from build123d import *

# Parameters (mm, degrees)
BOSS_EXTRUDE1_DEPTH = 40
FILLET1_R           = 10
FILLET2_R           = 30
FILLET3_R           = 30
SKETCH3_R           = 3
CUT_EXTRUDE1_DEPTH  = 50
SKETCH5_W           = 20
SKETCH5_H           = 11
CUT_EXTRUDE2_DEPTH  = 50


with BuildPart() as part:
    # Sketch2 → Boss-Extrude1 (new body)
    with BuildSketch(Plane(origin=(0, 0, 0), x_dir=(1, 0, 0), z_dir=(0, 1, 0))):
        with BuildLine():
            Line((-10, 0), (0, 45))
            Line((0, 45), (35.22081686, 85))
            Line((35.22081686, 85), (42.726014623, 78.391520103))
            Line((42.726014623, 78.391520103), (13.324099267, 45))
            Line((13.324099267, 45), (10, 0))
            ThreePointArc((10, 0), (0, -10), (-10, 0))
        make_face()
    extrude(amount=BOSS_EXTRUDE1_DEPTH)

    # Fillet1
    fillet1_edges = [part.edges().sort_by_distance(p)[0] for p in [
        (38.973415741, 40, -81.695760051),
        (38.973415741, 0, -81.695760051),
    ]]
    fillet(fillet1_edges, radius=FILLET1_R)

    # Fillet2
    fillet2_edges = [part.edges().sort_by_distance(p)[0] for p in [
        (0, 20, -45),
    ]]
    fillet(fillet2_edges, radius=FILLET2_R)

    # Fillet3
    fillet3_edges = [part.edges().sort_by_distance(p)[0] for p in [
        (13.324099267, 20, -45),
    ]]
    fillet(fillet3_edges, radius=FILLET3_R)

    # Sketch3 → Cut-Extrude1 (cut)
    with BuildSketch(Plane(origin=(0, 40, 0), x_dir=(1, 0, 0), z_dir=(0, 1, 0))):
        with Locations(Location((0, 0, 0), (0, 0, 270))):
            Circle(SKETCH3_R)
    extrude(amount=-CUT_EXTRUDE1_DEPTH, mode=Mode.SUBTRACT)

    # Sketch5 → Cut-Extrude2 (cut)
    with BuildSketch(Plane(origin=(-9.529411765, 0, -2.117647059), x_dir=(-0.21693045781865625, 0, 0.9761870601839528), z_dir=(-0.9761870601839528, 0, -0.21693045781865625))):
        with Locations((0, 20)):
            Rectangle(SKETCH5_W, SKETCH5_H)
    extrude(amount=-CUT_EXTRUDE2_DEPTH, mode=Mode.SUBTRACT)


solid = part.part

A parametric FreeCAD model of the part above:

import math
import FreeCAD as App
import Part
import Sketcher

V = App.Vector


def edges_at(feature, points):
    """Names of the edges that pass closest to the given points."""
    edges = feature.Shape.Edges
    near = lambda p: min(range(len(edges)), key=lambda i: edges[i].distToShape(Part.Vertex(*p))[0])
    return sorted({f"Edge{near(p) + 1}" for p in points})


def add_polygon(sketch, points):
    """Adds a closed chain of lines whose ends are joined by coincident constraints."""
    first, n = sketch.GeometryCount, len(points)
    for a, b in zip(points, points[1:] + points[:1]):
        sketch.addGeometry(Part.LineSegment(App.Vector(*a, 0), App.Vector(*b, 0)), False)
    for i in range(n):
        sketch.addConstraint(Sketcher.Constraint("Coincident", first + i, 2, first + (i + 1) % n, 1))

doc = App.newDocument("Part")
body = doc.addObject("PartDesign::Body", "Body")

# Sketch on XZ plane
sketch1 = doc.addObject("Sketcher::SketchObject", "Sketch")
body.addObject(sketch1)
sketch1.AttachmentSupport = (doc.XZ_Plane, [""])
sketch1.MapMode = "FlatFace"
sketch1.addGeometry(Part.LineSegment(V(0, -45, 0), V(-10, 0, 0)), False)
sketch1.addGeometry(Part.ArcOfCircle(Part.Circle(V(0, 0, 0), V(0, 0, 1), 10), math.radians(0), math.radians(180)), False)
sketch1.addGeometry(Part.LineSegment(V(10, 0, 0), V(13, -45, 0)), False)
sketch1.addGeometry(Part.LineSegment(V(13, -45, 0), V(43, -78, 0)), False)
sketch1.addGeometry(Part.LineSegment(V(43, -78, 0), V(35, -85, 0)), False)
sketch1.addGeometry(Part.LineSegment(V(35, -85, 0), V(0, -45, 0)), False)
sketch1.addConstraint(Sketcher.Constraint("Coincident", 0, 2, 1, 2))
sketch1.addConstraint(Sketcher.Constraint("Coincident", 1, 1, 2, 1))
sketch1.addConstraint(Sketcher.Constraint("Coincident", 2, 2, 3, 1))
sketch1.addConstraint(Sketcher.Constraint("Coincident", 3, 2, 4, 1))
sketch1.addConstraint(Sketcher.Constraint("Coincident", 4, 2, 5, 1))
sketch1.addConstraint(Sketcher.Constraint("Coincident", 5, 2, 0, 1))
sketch1.addConstraint(Sketcher.Constraint("Coincident", 1, 3, -1, 1))
sketch1.addConstraint(Sketcher.Constraint("PointOnObject", 0, 2, -1))
sketch1.addConstraint(Sketcher.Constraint("PointOnObject", 1, 1, -1))
sketch1.addConstraint(Sketcher.Constraint("PointOnObject", 5, 2, -2))
sketch1.addConstraint(Sketcher.Constraint("Perpendicular", 3, 4))
sketch1.addConstraint(Sketcher.Constraint("Perpendicular", 4, 5))
sketch1.addConstraint(Sketcher.Constraint("Horizontal", 2, 2, 5, 2))
sketch1.addConstraint(Sketcher.Constraint("Radius", 1, 10.0))
sketch1.addConstraint(Sketcher.Constraint("Distance", 4, 10.0))
sketch1.addConstraint(Sketcher.Constraint("DistanceY", 2, 2, -1, 1, 45.0))
sketch1.addConstraint(Sketcher.Constraint("DistanceY", 4, 2, -1, 1, 85.0))
sketch1.addConstraint(Sketcher.Constraint("DistanceX", -1, 1, 2, 2, 13.324099))
pad1 = doc.addObject("PartDesign::Pad", "Pad")
body.addObject(pad1)
pad1.Profile = sketch1
pad1.Length = 40
pad1.Reversed = True
doc.recompute()

fillet = doc.addObject("PartDesign::Fillet", "Fillet")
body.addObject(fillet)
fillet.Base = (pad1, edges_at(pad1, [(38.973, 40, -81.696), (38.973, 0, -81.696)]))
fillet.Radius = 10
doc.recompute()

fillet2 = doc.addObject("PartDesign::Fillet", "Fillet001")
body.addObject(fillet2)
fillet2.Base = (fillet, edges_at(fillet, [(0, 20, -45)]))
fillet2.Radius = 30
doc.recompute()

fillet3 = doc.addObject("PartDesign::Fillet", "Fillet002")
body.addObject(fillet3)
fillet3.Base = (fillet2, edges_at(fillet2, [(13.324, 20, -45)]))
fillet3.Radius = 30

# Sketch on XZ plane
sketch2 = doc.addObject("Sketcher::SketchObject", "Sketch001")
body.addObject(sketch2)
sketch2.AttachmentSupport = (doc.XZ_Plane, [""])
sketch2.MapMode = "FlatFace"
sketch2.AttachmentOffset = App.Placement(V(0, 0, -40), App.Rotation())
sketch2.addGeometry(Part.Circle(V(0, 0, 0), V(0, 0, 1), 3), False)
sketch2.addConstraint(Sketcher.Constraint("Coincident", 0, 3, -1, 1))
sketch2.addConstraint(Sketcher.Constraint("Diameter", 0, 6.0))
pocket1 = doc.addObject("PartDesign::Pocket", "Pocket")
body.addObject(pocket1)
pocket1.Profile = sketch2
pocket1.Length = 50
pocket1.Reversed = True

# Sketch on an angled plane
sketch3 = doc.addObject("Sketcher::SketchObject", "Sketch002")
body.addObject(sketch3)
sketch3.Placement = App.Placement(V(-9.529412, 0, -2.117647), App.Rotation(V(-0.216930458, 0, 0.97618706), V(0, 1, 0), V(-0.97618706, 0, -0.216930458), "ZXY"))
add_polygon(sketch3, [(-10, 25), (-10, 14), (10, 14), (10, 25)])  # lines 0-3
sketch3.addConstraint(Sketcher.Constraint("Vertical", 0))
sketch3.addConstraint(Sketcher.Constraint("Horizontal", 1))
sketch3.addConstraint(Sketcher.Constraint("Vertical", 2))
sketch3.addConstraint(Sketcher.Constraint("Horizontal", 3))
sketch3.addConstraint(Sketcher.Constraint("DistanceX", 1, 1, 1, 2, 20.0))
sketch3.addConstraint(Sketcher.Constraint("DistanceY", 0, 2, 0, 1, 11.0))
sketch3.addConstraint(Sketcher.Constraint("DistanceX", 0, 2, -1, 1, 10.0))
sketch3.addConstraint(Sketcher.Constraint("DistanceY", -1, 1, 0, 2, 14.5))
pocket2 = doc.addObject("PartDesign::Pocket", "Pocket001")
body.addObject(pocket2)
pocket2.Profile = sketch3
pocket2.Length = 50

doc.recompute()
